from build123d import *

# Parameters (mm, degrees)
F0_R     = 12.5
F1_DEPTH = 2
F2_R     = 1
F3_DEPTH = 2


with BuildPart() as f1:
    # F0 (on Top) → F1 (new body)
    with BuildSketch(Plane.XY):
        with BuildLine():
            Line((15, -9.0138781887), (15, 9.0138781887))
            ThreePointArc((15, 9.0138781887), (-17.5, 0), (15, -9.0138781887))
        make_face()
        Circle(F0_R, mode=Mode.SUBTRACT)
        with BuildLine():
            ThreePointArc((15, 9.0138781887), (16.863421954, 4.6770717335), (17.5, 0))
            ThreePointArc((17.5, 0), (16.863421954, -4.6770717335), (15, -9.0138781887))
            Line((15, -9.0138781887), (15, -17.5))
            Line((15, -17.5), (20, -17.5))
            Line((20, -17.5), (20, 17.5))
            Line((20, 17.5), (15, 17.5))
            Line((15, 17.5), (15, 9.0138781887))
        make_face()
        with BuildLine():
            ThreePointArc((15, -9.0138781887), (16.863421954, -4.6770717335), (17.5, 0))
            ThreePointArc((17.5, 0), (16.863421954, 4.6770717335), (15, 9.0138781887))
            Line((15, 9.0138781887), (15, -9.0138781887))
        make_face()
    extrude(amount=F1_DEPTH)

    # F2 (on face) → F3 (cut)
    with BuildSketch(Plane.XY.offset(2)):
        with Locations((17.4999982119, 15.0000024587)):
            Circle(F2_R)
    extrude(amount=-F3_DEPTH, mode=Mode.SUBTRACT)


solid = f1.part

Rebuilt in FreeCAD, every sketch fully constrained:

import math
import FreeCAD as App
import Part
import Sketcher

V = App.Vector
Q = App.Units.Quantity

doc = App.newDocument("Part")
body = doc.addObject("PartDesign::Body", "Body")

sketch1 = body.newObject("Sketcher::SketchObject", "Sketch")
sketch1.AttachmentSupport = (doc.getObject("XY_Plane"), [""])
sketch1.MapMode = "FlatFace"
sketch1.addGeometry(Part.ArcOfCircle(Part.Circle(V(0, 0, 0), V(0, 0, 1), 18), math.radians(31), math.radians(329)), False)
sketch1.addGeometry(Part.LineSegment(V(15, -9, 0), V(15, -18, 0)), False)
sketch1.addGeometry(Part.LineSegment(V(15, -18, 0), V(20, -18, 0)), False)
sketch1.addGeometry(Part.LineSegment(V(20, -18, 0), V(20, 18, 0)), False)
sketch1.addGeometry(Part.LineSegment(V(20, 18, 0), V(15, 18, 0)), False)
sketch1.addGeometry(Part.LineSegment(V(15, 18, 0), V(15, 9, 0)), False)
sketch1.addGeometry(Part.Circle(V(0, 0, 0), V(0, 0, 1), 12), False)
sketch1.addConstraint(Sketcher.Constraint("Coincident", 0, 2, 1, 1))
sketch1.addConstraint(Sketcher.Constraint("Coincident", 1, 2, 2, 1))
sketch1.addConstraint(Sketcher.Constraint("Coincident", 2, 2, 3, 1))
sketch1.addConstraint(Sketcher.Constraint("Coincident", 3, 2, 4, 1))
sketch1.addConstraint(Sketcher.Constraint("Coincident", 4, 2, 5, 1))
sketch1.addConstraint(Sketcher.Constraint("Coincident", 5, 2, 0, 1))
sketch1.addConstraint(Sketcher.Constraint("Vertical", 1))
sketch1.addConstraint(Sketcher.Constraint("Horizontal", 2))
sketch1.addConstraint(Sketcher.Constraint("Vertical", 3))
sketch1.addConstraint(Sketcher.Constraint("Horizontal", 4))
sketch1.addConstraint(Sketcher.Constraint("Vertical", 5))
sketch1.addConstraint(Sketcher.Constraint("Coincident", 0, 3, -1, 1))
sketch1.addConstraint(Sketcher.Constraint("Coincident", 6, 3, -1, 1))
sketch1.addConstraint(Sketcher.Constraint("Symmetric", 1, 2, 4, 2, -1))
sketch1.addConstraint(Sketcher.Constraint("Diameter", 6, Q("25 mm")))
sketch1.addConstraint(Sketcher.Constraint("Radius", 0, Q("17.5 mm")))
sketch1.addConstraint(Sketcher.Constraint("DistanceX", 2, 1, 2, 2, Q("5 mm")))
sketch1.addConstraint(Sketcher.Constraint("DistanceY", 3, 1, 3, 2, Q("35 mm")))
sketch1.addConstraint(Sketcher.Constraint("DistanceX", -1, 1, 0, 2, Q("15 mm")))
pad1 = body.newObject("PartDesign::Pad", "Pad")
pad1.Profile = sketch1
pad1.Length = 2

sketch2 = body.newObject("Sketcher::SketchObject", "Sketch001")
sketch2.AttachmentSupport = (doc.getObject("XY_Plane"), [""])
sketch2.MapMode = "FlatFace"
sketch2.AttachmentOffset = App.Placement(V(0, 0, 2), App.Rotation())
sketch2.addGeometry(Part.Circle(V(17.5, 15, 0), V(0, 0, 1), 1), False)
sketch2.addConstraint(Sketcher.Constraint("Diameter", 0, Q("2 mm")))
sketch2.addConstraint(Sketcher.Constraint("DistanceX", -1, 1, 0, 3, Q("17.499998 mm")))
sketch2.addConstraint(Sketcher.Constraint("DistanceY", -1, 1, 0, 3, Q("15.000002 mm")))
pocket1 = body.newObject("PartDesign::Pocket", "Pocket")
pocket1.Profile = sketch2
pocket1.Length = 2

doc.recompute()
